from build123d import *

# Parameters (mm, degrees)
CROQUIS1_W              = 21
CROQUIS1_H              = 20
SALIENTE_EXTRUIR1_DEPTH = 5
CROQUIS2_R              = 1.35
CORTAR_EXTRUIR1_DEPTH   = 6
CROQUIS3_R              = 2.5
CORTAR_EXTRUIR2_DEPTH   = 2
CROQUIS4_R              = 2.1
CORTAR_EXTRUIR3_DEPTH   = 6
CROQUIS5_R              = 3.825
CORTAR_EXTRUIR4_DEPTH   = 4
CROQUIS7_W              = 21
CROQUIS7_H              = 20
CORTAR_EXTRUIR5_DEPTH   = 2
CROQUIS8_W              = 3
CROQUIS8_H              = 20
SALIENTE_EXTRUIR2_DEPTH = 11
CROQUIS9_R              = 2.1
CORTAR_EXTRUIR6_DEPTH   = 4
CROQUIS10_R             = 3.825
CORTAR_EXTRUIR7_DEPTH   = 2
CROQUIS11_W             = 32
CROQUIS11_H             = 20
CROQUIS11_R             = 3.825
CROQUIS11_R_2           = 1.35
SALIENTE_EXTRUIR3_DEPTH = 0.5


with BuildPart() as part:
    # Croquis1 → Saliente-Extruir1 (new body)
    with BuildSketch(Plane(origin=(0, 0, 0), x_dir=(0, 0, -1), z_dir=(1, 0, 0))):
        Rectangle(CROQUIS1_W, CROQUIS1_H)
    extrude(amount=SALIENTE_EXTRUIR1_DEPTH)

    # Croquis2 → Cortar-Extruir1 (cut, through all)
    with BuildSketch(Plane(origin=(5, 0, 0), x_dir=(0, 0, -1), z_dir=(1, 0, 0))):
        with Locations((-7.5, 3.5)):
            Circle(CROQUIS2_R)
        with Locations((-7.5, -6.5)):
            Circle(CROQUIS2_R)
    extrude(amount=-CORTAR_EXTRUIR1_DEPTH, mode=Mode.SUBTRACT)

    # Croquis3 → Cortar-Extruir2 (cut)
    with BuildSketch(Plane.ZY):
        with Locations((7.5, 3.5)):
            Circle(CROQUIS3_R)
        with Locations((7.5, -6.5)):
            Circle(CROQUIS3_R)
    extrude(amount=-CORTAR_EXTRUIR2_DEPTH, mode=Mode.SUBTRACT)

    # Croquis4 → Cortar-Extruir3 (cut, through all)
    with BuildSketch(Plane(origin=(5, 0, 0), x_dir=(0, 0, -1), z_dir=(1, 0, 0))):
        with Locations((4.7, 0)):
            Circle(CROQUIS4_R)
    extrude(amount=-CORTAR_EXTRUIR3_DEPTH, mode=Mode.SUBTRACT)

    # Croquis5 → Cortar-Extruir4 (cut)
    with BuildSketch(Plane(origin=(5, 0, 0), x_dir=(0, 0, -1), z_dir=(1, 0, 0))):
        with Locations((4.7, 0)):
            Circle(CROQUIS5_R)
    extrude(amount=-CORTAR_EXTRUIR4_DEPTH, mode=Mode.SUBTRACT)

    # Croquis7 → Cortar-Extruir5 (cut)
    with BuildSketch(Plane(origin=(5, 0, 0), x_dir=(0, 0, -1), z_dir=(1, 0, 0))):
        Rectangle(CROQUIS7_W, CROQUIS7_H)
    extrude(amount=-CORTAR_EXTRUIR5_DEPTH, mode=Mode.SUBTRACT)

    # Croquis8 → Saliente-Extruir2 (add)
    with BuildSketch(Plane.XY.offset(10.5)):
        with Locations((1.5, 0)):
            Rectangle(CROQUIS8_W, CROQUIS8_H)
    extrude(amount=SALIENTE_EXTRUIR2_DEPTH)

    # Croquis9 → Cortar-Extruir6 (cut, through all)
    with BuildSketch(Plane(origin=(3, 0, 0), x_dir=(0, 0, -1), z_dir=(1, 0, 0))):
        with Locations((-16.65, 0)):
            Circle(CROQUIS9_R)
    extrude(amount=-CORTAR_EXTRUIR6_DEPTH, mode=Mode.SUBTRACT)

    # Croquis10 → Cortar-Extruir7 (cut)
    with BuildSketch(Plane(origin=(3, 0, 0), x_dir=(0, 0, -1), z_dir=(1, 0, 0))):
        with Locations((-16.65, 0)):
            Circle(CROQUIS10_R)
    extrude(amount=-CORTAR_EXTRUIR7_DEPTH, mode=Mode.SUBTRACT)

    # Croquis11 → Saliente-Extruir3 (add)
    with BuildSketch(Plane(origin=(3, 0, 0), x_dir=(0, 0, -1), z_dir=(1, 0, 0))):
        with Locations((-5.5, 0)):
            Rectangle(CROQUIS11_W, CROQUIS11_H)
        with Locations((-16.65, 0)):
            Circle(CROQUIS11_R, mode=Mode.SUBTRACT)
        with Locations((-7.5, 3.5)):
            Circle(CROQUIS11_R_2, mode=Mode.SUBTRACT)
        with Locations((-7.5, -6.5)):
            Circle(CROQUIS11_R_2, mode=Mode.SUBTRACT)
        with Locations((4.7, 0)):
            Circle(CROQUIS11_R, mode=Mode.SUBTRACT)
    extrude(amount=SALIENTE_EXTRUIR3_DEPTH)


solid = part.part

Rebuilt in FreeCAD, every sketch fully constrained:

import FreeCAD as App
import Part
import Sketcher
from FreeCAD import Vector


def add_polygon(sketch, points):
    """Adds a closed chain of lines whose ends are joined by coincident constraints."""
    first, n = sketch.GeometryCount, len(points)
    for a, b in zip(points, points[1:] + points[:1]):
        sketch.addGeometry(Part.LineSegment(App.Vector(*a, 0), App.Vector(*b, 0)), False)
    for i in range(n):
        sketch.addConstraint(Sketcher.Constraint("Coincident", first + i, 2, first + (i + 1) % n, 1))

doc = App.newDocument("Part")
body = doc.addObject("PartDesign::Body", "Body")

sketch1 = body.newObject("Sketcher::SketchObject", "Sketch")
sketch1.AttachmentSupport = (doc.getObject("YZ_Plane"), [""])
sketch1.MapMode = "FlatFace"
add_polygon(sketch1, [(10, 10.5), (-10, 10.5), (-10, -10.5), (10, -10.5)])
sketch1.addConstraint([
    Sketcher.Constraint("Horizontal", 0),
    Sketcher.Constraint("Vertical", 1),
    Sketcher.Constraint("Horizontal", 2),
    Sketcher.Constraint("Vertical", 3),
    Sketcher.Constraint("Symmetric", 0, 2, 2, 2, -1, 1),
    Sketcher.Constraint("DistanceX", 0, 2, 0, 1, 20.0),
    Sketcher.Constraint("DistanceY", 1, 2, 1, 1, 21.0),
])
pad1 = body.newObject("PartDesign::Pad", "Pad")
pad1.Profile = sketch1
pad1.Length = 5

sketch2 = body.newObject("Sketcher::SketchObject", "Sketch001")
sketch2.AttachmentSupport = (doc.getObject("YZ_Plane"), [""])
sketch2.MapMode = "FlatFace"
sketch2.AttachmentOffset = App.Placement(Vector(0, 0, 5), App.Rotation())
sketch2.addGeometry([
    Part.Circle(Vector(3.5, 7.5, 0), Vector(0, 0, 1), 1.35),
    Part.Circle(Vector(-6.5, 7.5, 0), Vector(0, 0, 1), 1.35),
], False)
sketch2.addConstraint([
    Sketcher.Constraint("Equal", 0, 1),
    Sketcher.Constraint("Horizontal", 0, 3, 1, 3),
    Sketcher.Constraint("Diameter", 0, 2.7),
    Sketcher.Constraint("DistanceX", 1, 3, 0, 3, 10.0),
    Sketcher.Constraint("DistanceX", -1, 1, 0, 3, 3.5),
    Sketcher.Constraint("DistanceY", -1, 1, 0, 3, 7.5),
])
pocket1 = body.newObject("PartDesign::Pocket", "Pocket")
pocket1.Profile = sketch2
pocket1.Type = "ThroughAll"

sketch3 = body.newObject("Sketcher::SketchObject", "Sketch002")
sketch3.AttachmentSupport = (doc.getObject("YZ_Plane"), [""])
sketch3.MapMode = "FlatFace"
sketch3.addGeometry([
    Part.Circle(Vector(3.5, 7.5, 0), Vector(0, 0, 1), 2.5),
    Part.Circle(Vector(-6.5, 7.5, 0), Vector(0, 0, 1), 2.5),
], False)
sketch3.addConstraint([
    Sketcher.Constraint("Equal", 0, 1),
    Sketcher.Constraint("Horizontal", 0, 3, 1, 3),
    Sketcher.Constraint("Diameter", 0, 5.0),
    Sketcher.Constraint("DistanceX", 1, 3, 0, 3, 10.0),
    Sketcher.Constraint("DistanceX", -1, 1, 0, 3, 3.5),
    Sketcher.Constraint("DistanceY", -1, 1, 0, 3, 7.5),
])
pocket2 = body.newObject("PartDesign::Pocket", "Pocket001")
pocket2.Profile = sketch3
pocket2.Length = 2
pocket2.Reversed = True

sketch4 = body.newObject("Sketcher::SketchObject", "Sketch003")
sketch4.AttachmentSupport = (doc.getObject("YZ_Plane"), [""])
sketch4.MapMode = "FlatFace"
sketch4.AttachmentOffset = App.Placement(Vector(0, 0, 5), App.Rotation())
sketch4.addGeometry(Part.Circle(Vector(0, -4.7, 0), Vector(0, 0, 1), 2.1), False)
sketch4.addConstraint([
    Sketcher.Constraint("PointOnObject", 0, 3, -2),
    Sketcher.Constraint("Diameter", 0, 4.2),
    Sketcher.Constraint("DistanceY", 0, 3, -1, 1, 4.7),
])
pocket3 = body.newObject("PartDesign::Pocket", "Pocket002")
pocket3.Profile = sketch4
pocket3.Type = "ThroughAll"

sketch5 = body.newObject("Sketcher::SketchObject", "Sketch004")
sketch5.AttachmentSupport = (doc.getObject("YZ_Plane"), [""])
sketch5.MapMode = "FlatFace"
sketch5.AttachmentOffset = App.Placement(Vector(0, 0, 5), App.Rotation())
sketch5.addGeometry(Part.Circle(Vector(0, -4.7, 0), Vector(0, 0, 1), 3.825), False)
sketch5.addConstraint([
    Sketcher.Constraint("PointOnObject", 0, 3, -2),
    Sketcher.Constraint("Diameter", 0, 7.65),
    Sketcher.Constraint("DistanceY", 0, 3, -1, 1, 4.7),
])
pocket4 = body.newObject("PartDesign::Pocket", "Pocket003")
pocket4.Profile = sketch5
pocket4.Length = 4

sketch6 = body.newObject("Sketcher::SketchObject", "Sketch005")
sketch6.AttachmentSupport = (doc.getObject("YZ_Plane"), [""])
sketch6.MapMode = "FlatFace"
sketch6.AttachmentOffset = App.Placement(Vector(0, 0, 5), App.Rotation())
add_polygon(sketch6, [(10, 10.5), (-10, 10.5), (-10, -10.5), (10, -10.5)])
sketch6.addConstraint([
    Sketcher.Constraint("Horizontal", 0),
    Sketcher.Constraint("Vertical", 1),
    Sketcher.Constraint("Horizontal", 2),
    Sketcher.Constraint("Vertical", 3),
    Sketcher.Constraint("Symmetric", 0, 2, 2, 2, -1, 1),
    Sketcher.Constraint("DistanceX", 0, 2, 0, 1, 20.0),
    Sketcher.Constraint("DistanceY", 1, 2, 1, 1, 21.0),
])
pocket5 = body.newObject("PartDesign::Pocket", "Pocket004")
pocket5.Profile = sketch6
pocket5.Length = 2

sketch7 = body.newObject("Sketcher::SketchObject", "Sketch006")
sketch7.AttachmentSupport = (doc.getObject("XY_Plane"), [""])
sketch7.MapMode = "FlatFace"
sketch7.AttachmentOffset = App.Placement(Vector(0, 0, 10.5), App.Rotation())
add_polygon(sketch7, [(0, 10), (0, -10), (3, -10), (3, 10)])
sketch7.addConstraint([
    Sketcher.Constraint("Vertical", 0),
    Sketcher.Constraint("Horizontal", 1),
    Sketcher.Constraint("Vertical", 2),
    Sketcher.Constraint("Horizontal", 3),
    Sketcher.Constraint("Symmetric", 0, 2, 3, 2, -1, 1),
    Sketcher.Constraint("DistanceX", 1, 1, 1, 2, 3.0),
    Sketcher.Constraint("DistanceY", 0, 2, 0, 1, 20.0),
])
pad2 = body.newObject("PartDesign::Pad", "Pad001")
pad2.Profile = sketch7
pad2.Length = 11

sketch8 = body.newObject("Sketcher::SketchObject", "Sketch007")
sketch8.AttachmentSupport = (doc.getObject("YZ_Plane"), [""])
sketch8.MapMode = "FlatFace"
sketch8.AttachmentOffset = App.Placement(Vector(0, 0, 3), App.Rotation())
sketch8.addGeometry(Part.Circle(Vector(0, 16.65, 0), Vector(0, 0, 1), 2.1), False)
sketch8.addConstraint([
    Sketcher.Constraint("PointOnObject", 0, 3, -2),
    Sketcher.Constraint("Diameter", 0, 4.2),
    Sketcher.Constraint("DistanceY", -1, 1, 0, 3, 16.65),
])
pocket6 = body.newObject("PartDesign::Pocket", "Pocket005")
pocket6.Profile = sketch8
pocket6.Type = "ThroughAll"

sketch9 = body.newObject("Sketcher::SketchObject", "Sketch008")
sketch9.AttachmentSupport = (doc.getObject("YZ_Plane"), [""])
sketch9.MapMode = "FlatFace"
sketch9.AttachmentOffset = App.Placement(Vector(0, 0, 3), App.Rotation())
sketch9.addGeometry(Part.Circle(Vector(0, 16.65, 0), Vector(0, 0, 1), 3.825), False)
sketch9.addConstraint([
    Sketcher.Constraint("PointOnObject", 0, 3, -2),
    Sketcher.Constraint("Diameter", 0, 7.65),
    Sketcher.Constraint("DistanceY", -1, 1, 0, 3, 16.65),
])
pocket7 = body.newObject("PartDesign::Pocket", "Pocket006")
pocket7.Profile = sketch9
pocket7.Length = 2

sketch10 = body.newObject("Sketcher::SketchObject", "Sketch009")
sketch10.AttachmentSupport = (doc.getObject("YZ_Plane"), [""])
sketch10.MapMode = "FlatFace"
sketch10.AttachmentOffset = App.Placement(Vector(0, 0, 3), App.Rotation())
add_polygon(sketch10, [(10, 21.5), (-10, 21.5), (-10, -10.5), (10, -10.5)])
sketch10.addGeometry(Part.Circle(Vector(-6.5, 7.5, 0), Vector(0, 0, 1), 1.35), False)
sketch10.addGeometry(Part.Circle(Vector(0, 16.65, 0), Vector(0, 0, 1), 3.825), False)
sketch10.addGeometry(Part.Circle(Vector(3.5, 7.5, 0), Vector(0, 0, 1), 1.35), False)
sketch10.addGeometry(Part.Circle(Vector(0, -4.7, 0), Vector(0, 0, 1), 3.825), False)
sketch10.addConstraint([
    Sketcher.Constraint("Horizontal", 0),
    Sketcher.Constraint("Vertical", 1),
    Sketcher.Constraint("Horizontal", 2),
    Sketcher.Constraint("Vertical", 3),
    Sketcher.Constraint("Equal", 4, 6),
    Sketcher.Constraint("Equal", 5, 7),
    Sketcher.Constraint("PointOnObject", 5, 3, -2),
    Sketcher.Constraint("PointOnObject", 7, 3, -2),
    Sketcher.Constraint("Horizontal", 4, 3, 6, 3),
    Sketcher.Constraint("Diameter", 4, 2.7),
    Sketcher.Constraint("Diameter", 5, 7.65),
    Sketcher.Constraint("DistanceX", 0, 2, 0, 1, 20.0),
    Sketcher.Constraint("DistanceY", 1, 2, 1, 1, 32.0),
    Sketcher.Constraint("DistanceX", 0, 2, -1, 1, 10.0),
    Sketcher.Constraint("DistanceX", 4, 3, 6, 3, 10.0),
    Sketcher.Constraint("DistanceY", 4, 3, 0, 2, 14.0),
    Sketcher.Constraint("DistanceX", 4, 3, -1, 1, 6.5),
    Sketcher.Constraint("DistanceY", -1, 1, 4, 3, 7.5),
    Sketcher.Constraint("DistanceY", 7, 3, -1, 1, 4.7),
    Sketcher.Constraint("DistanceY", -1, 1, 5, 3, 16.65),
])
pad3 = body.newObject("PartDesign::Pad", "Pad002")
pad3.Profile = sketch10
pad3.Length = 0.5

doc.recompute()
